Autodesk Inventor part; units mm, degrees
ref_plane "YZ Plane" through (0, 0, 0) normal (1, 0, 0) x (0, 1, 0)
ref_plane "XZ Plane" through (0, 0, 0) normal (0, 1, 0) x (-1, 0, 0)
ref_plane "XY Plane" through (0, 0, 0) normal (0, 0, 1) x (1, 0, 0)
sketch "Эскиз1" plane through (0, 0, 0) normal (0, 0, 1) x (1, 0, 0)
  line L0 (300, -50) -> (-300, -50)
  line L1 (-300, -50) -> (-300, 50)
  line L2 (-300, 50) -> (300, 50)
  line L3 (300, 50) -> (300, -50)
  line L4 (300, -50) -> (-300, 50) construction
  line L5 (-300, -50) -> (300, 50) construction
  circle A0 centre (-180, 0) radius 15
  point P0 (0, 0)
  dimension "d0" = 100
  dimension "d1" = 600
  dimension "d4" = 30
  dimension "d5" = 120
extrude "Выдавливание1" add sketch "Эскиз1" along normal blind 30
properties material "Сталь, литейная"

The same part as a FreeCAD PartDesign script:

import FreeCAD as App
import Part
import Sketcher
from FreeCAD import Vector
Q = App.Units.Quantity


def add_polygon(sketch, points):
    """Adds a closed chain of lines whose ends are joined by coincident constraints."""
    first, n = sketch.GeometryCount, len(points)
    for a, b in zip(points, points[1:] + points[:1]):
        sketch.addGeometry(Part.LineSegment(App.Vector(*a, 0), App.Vector(*b, 0)), False)
    for i in range(n):
        sketch.addConstraint(Sketcher.Constraint("Coincident", first + i, 2, first + (i + 1) % n, 1))

doc = App.newDocument("Part")
body = doc.addObject("PartDesign::Body", "Body")

sketch1 = body.newObject("Sketcher::SketchObject", "Sketch")
sketch1.AttachmentSupport = (doc.getObject("XY_Plane"), [""])
sketch1.MapMode = "FlatFace"
add_polygon(sketch1, [(-300, -50), (300, -50), (300, 50), (-300, 50)])
sketch1.addGeometry(Part.Circle(Vector(-180, 0, 0), Vector(0, 0, 1), 15), False)
sketch1.addConstraint([
    Sketcher.Constraint("Horizontal", 0),
    Sketcher.Constraint("Vertical", 1),
    Sketcher.Constraint("Horizontal", 2),
    Sketcher.Constraint("Vertical", 3),
    Sketcher.Constraint("Symmetric", 0, 2, 2, 2, -1, 1),
    Sketcher.Constraint("PointOnObject", 4, 3, -1),
    Sketcher.Constraint("Diameter", 4, Q("30 mm")),
    Sketcher.Constraint("DistanceX", 0, 1, 0, 2, Q("600 mm")),
    Sketcher.Constraint("DistanceY", 1, 1, 1, 2, Q("100 mm")),
    Sketcher.Constraint("DistanceX", 2, 2, 4, 3, Q("120 mm")),
])
pad1 = body.newObject("PartDesign::Pad", "Pad")
pad1.Profile = sketch1
pad1.Length = 30

doc.recompute()
